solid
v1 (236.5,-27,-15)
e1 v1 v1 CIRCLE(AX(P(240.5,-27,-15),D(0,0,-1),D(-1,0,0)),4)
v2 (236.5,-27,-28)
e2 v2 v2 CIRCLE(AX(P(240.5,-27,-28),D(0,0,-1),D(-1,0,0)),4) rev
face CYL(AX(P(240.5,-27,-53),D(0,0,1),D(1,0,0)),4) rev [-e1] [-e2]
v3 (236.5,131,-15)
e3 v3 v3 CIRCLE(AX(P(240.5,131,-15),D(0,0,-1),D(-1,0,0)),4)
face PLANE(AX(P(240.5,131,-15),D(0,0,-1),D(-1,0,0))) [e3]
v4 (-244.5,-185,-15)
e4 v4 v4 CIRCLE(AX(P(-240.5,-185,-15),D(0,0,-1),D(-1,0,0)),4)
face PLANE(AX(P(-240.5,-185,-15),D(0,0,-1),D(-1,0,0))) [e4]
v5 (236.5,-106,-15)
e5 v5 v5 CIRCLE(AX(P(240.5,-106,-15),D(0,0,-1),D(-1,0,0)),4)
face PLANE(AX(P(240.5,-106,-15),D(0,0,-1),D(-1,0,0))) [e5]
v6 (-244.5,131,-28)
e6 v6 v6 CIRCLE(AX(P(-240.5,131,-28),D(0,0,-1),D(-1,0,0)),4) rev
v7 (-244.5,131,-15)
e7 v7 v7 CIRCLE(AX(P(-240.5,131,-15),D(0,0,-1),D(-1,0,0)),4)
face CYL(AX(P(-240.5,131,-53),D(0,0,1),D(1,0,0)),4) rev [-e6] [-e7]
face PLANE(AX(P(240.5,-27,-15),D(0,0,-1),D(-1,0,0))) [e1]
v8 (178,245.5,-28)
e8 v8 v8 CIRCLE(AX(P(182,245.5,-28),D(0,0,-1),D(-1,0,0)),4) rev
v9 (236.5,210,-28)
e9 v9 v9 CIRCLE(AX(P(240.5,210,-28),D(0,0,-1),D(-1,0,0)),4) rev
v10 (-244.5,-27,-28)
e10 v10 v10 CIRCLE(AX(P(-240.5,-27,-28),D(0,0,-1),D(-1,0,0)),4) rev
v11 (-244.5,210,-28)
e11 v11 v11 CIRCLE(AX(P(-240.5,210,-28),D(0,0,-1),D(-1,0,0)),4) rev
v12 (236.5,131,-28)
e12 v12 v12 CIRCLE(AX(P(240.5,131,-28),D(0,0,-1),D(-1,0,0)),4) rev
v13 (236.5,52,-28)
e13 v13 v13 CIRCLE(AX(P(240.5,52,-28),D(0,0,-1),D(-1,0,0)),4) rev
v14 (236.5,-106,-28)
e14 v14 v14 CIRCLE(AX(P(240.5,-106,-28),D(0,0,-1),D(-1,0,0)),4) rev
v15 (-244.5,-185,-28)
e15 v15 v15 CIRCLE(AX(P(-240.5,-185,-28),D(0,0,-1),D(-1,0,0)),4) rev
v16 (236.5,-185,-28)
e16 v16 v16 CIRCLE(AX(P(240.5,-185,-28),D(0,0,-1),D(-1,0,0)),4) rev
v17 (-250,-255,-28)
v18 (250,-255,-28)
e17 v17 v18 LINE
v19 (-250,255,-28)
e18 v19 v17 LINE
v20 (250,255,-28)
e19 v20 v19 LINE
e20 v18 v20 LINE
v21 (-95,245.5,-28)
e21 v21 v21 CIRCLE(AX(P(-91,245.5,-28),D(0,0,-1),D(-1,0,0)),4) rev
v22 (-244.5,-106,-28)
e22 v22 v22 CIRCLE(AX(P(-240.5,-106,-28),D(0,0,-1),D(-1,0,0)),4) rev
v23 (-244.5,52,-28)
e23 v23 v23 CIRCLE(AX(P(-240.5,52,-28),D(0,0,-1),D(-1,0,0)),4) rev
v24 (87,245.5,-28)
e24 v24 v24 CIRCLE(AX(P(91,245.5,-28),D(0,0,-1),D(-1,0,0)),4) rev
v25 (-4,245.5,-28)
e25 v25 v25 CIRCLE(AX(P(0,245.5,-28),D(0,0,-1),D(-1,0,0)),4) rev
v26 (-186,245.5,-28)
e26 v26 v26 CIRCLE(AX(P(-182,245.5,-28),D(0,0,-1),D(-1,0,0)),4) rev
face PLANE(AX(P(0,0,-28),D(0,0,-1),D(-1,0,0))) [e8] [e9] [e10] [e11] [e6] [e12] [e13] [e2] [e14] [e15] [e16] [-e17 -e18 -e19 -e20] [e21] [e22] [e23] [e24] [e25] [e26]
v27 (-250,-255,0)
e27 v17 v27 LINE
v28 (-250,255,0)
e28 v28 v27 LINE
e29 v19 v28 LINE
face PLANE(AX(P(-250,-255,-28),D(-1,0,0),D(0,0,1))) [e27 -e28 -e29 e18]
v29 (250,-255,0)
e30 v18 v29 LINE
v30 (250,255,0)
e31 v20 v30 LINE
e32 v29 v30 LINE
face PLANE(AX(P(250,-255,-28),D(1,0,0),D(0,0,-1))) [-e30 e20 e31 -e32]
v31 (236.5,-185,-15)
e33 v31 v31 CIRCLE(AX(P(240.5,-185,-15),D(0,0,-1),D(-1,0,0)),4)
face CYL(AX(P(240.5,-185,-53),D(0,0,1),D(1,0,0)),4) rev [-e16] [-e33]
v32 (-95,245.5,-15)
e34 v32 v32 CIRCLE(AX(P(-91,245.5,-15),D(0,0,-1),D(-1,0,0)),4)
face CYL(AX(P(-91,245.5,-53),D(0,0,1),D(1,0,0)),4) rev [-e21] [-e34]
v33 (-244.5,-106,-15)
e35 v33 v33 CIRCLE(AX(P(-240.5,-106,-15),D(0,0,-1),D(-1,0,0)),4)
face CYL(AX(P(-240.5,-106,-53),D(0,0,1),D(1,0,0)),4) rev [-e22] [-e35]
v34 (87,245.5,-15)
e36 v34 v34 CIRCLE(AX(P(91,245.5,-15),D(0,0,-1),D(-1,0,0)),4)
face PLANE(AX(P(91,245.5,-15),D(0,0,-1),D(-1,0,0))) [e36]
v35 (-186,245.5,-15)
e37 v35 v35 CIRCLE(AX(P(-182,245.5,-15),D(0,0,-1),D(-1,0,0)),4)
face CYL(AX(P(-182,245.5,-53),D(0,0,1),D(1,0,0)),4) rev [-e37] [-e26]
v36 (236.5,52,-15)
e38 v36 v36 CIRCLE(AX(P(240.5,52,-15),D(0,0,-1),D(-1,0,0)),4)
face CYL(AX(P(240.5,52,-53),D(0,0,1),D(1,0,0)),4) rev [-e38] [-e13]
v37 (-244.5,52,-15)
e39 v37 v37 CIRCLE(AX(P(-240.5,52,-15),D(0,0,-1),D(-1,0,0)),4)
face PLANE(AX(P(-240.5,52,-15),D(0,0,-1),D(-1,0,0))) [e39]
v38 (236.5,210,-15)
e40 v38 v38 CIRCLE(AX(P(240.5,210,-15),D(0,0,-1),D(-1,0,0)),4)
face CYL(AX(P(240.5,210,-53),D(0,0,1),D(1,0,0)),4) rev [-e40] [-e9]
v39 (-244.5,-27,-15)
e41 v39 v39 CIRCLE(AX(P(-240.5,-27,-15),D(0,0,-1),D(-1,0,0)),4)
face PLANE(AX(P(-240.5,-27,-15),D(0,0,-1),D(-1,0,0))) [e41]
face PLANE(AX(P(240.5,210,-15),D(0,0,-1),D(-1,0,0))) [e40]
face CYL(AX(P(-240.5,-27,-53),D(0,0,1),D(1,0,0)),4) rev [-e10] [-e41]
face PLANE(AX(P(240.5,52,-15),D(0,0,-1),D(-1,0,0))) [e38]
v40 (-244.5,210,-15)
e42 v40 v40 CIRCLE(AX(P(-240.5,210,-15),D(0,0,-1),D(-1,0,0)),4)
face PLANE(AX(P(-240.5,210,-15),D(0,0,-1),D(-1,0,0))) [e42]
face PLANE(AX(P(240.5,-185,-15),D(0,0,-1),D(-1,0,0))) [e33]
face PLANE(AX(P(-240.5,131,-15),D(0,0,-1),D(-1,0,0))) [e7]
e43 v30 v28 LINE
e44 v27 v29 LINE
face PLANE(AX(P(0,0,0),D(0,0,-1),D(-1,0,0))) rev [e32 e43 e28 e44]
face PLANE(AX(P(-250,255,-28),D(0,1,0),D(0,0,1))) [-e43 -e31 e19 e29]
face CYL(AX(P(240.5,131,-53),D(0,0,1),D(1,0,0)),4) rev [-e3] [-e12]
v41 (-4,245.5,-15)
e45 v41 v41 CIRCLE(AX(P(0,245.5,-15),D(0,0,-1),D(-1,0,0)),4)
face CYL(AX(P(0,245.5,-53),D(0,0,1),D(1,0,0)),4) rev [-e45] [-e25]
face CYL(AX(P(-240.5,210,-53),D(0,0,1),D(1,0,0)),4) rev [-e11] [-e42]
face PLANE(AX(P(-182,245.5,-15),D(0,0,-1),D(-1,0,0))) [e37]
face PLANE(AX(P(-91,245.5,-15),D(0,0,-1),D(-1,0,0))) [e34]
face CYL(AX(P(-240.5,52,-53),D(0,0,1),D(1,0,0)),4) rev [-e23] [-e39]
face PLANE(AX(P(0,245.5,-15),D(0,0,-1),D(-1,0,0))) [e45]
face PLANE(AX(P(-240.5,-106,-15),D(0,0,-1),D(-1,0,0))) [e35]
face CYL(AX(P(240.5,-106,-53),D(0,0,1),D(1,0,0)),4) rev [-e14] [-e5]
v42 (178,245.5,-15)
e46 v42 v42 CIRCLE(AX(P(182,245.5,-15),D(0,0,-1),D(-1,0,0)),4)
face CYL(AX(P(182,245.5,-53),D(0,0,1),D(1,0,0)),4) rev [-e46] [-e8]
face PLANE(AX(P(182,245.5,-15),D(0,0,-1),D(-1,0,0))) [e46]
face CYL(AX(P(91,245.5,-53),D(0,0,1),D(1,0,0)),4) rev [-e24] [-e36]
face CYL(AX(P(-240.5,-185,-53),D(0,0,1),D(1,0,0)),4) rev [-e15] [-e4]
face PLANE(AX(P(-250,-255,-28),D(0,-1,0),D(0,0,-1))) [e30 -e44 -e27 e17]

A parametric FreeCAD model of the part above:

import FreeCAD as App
import Part
import Sketcher
from FreeCAD import Vector
Q = App.Units.Quantity


def add_polygon(sketch, points):
    """Adds a closed chain of lines whose ends are joined by coincident constraints."""
    first, n = sketch.GeometryCount, len(points)
    for a, b in zip(points, points[1:] + points[:1]):
        sketch.addGeometry(Part.LineSegment(App.Vector(*a, 0), App.Vector(*b, 0)), False)
    for i in range(n):
        sketch.addConstraint(Sketcher.Constraint("Coincident", first + i, 2, first + (i + 1) % n, 1))

doc = App.newDocument("Part")
params = doc.addObject("Spreadsheet::Sheet", "Params")
for row, (alias, value) in enumerate([
    ("sketch1_width", "500 mm"),
    ("sketch1_height", "510 mm"),
    ("pad1_length", "28 mm"),
    ("sketch2_diameter", "8 mm"),
    ("pocket1_length", "25 mm"),
    ("pocket1_length2", "13 mm"),
], start=1):
    params.set(f"A{row}", alias)
    params.set(f"B{row}", "=" + value)
    params.setAlias(f"B{row}", alias)

body = doc.addObject("PartDesign::Body", "Body")

sketch1 = body.newObject("Sketcher::SketchObject", "Sketch")
sketch1.AttachmentSupport = (doc.getObject("XY_Plane"), [""])
sketch1.MapMode = "FlatFace"
add_polygon(sketch1, [(-250, 255), (-250, -255), (250, -255), (250, 255)])
sketch1.addConstraint([
    Sketcher.Constraint("Vertical", 0),
    Sketcher.Constraint("Horizontal", 1),
    Sketcher.Constraint("Vertical", 2),
    Sketcher.Constraint("Horizontal", 3),
    Sketcher.Constraint("Symmetric", 0, 2, 2, 2, -1, 1),
    Sketcher.Constraint("DistanceX", 1, 1, 1, 2, Q("500 mm")),
    Sketcher.Constraint("DistanceY", 0, 2, 0, 1, Q("510 mm")),
])
sketch1.setExpression("Constraints[9]", "Params.sketch1_width")
sketch1.setExpression("Constraints[10]", "Params.sketch1_height")
pad1 = body.newObject("PartDesign::Pad", "Pad")
pad1.Profile = sketch1
pad1.setExpression("Length", "Params.pad1_length")
pad1.Reversed = True

sketch2 = body.newObject("Sketcher::SketchObject", "Sketch001")
sketch2.AttachmentSupport = (doc.getObject("XY_Plane"), [""])
sketch2.MapMode = "FlatFace"
sketch2.AttachmentOffset = App.Placement(Vector(0, 0, -28), App.Rotation())
sketch2.addGeometry([
    Part.Circle(Vector(240.5, 210, 0), Vector(0, 0, 1), 4),
    Part.Circle(Vector(182, 245.5, 0), Vector(0, 0, 1), 4),
    Part.Circle(Vector(-240.5, 210, 0), Vector(0, 0, 1), 4),
    Part.Circle(Vector(-240.5, 131, 0), Vector(0, 0, 1), 4),
    Part.Circle(Vector(240.5, 131, 0), Vector(0, 0, 1), 4),
    Part.Circle(Vector(-240.5, 52, 0), Vector(0, 0, 1), 4),
    Part.Circle(Vector(240.5, 52, 0), Vector(0, 0, 1), 4),
    Part.Circle(Vector(-240.5, -27, 0), Vector(0, 0, 1), 4),
    Part.Circle(Vector(240.5, -27, 0), Vector(0, 0, 1), 4),
    Part.Circle(Vector(-240.5, -106, 0), Vector(0, 0, 1), 4),
    Part.Circle(Vector(240.5, -106, 0), Vector(0, 0, 1), 4),
    Part.Circle(Vector(-182, 245.5, 0), Vector(0, 0, 1), 4),
    Part.Circle(Vector(-240.5, -185, 0), Vector(0, 0, 1), 4),
    Part.Circle(Vector(91, 245.5, 0), Vector(0, 0, 1), 4),
    Part.Circle(Vector(0, 245.5, 0), Vector(0, 0, 1), 4),
    Part.Circle(Vector(-91, 245.5, 0), Vector(0, 0, 1), 4),
    Part.Circle(Vector(240.5, -185, 0), Vector(0, 0, 1), 4),
], False)
sketch2.addConstraint([
    Sketcher.Constraint("Equal", 0, 1),
    Sketcher.Constraint("Equal", 1, 2),
    Sketcher.Constraint("Equal", 2, 3),
    Sketcher.Constraint("Equal", 3, 4),
    Sketcher.Constraint("Equal", 4, 5),
    Sketcher.Constraint("Equal", 5, 6),
    Sketcher.Constraint("Equal", 6, 7),
    Sketcher.Constraint("Equal", 7, 8),
    Sketcher.Constraint("Equal", 8, 9),
    Sketcher.Constraint("Equal", 9, 10),
    Sketcher.Constraint("Equal", 10, 11),
    Sketcher.Constraint("Equal", 11, 12),
    Sketcher.Constraint("Equal", 12, 13),
    Sketcher.Constraint("Equal", 13, 14),
    Sketcher.Constraint("Equal", 14, 15),
    Sketcher.Constraint("Equal", 15, 16),
    Sketcher.Constraint("Symmetric", 0, 3, 2, 3, -2),
    Sketcher.Constraint("Symmetric", 3, 3, 4, 3, -2),
    Sketcher.Constraint("Symmetric", 5, 3, 6, 3, -2),
    Sketcher.Constraint("Symmetric", 7, 3, 8, 3, -2),
    Sketcher.Constraint("Symmetric", 9, 3, 10, 3, -2),
    Sketcher.Constraint("Symmetric", 1, 3, 11, 3, -2),
    Sketcher.Constraint("Symmetric", 13, 3, 15, 3, -2),
    Sketcher.Constraint("Symmetric", 12, 3, 16, 3, -2),
    Sketcher.Constraint("PointOnObject", 14, 3, -2),
    Sketcher.Constraint("Horizontal", 11, 3, 13, 3),
    Sketcher.Constraint("Horizontal", 13, 3, 14, 3),
    Sketcher.Constraint("Vertical", 2, 3, 3, 3),
    Sketcher.Constraint("Vertical", 3, 3, 5, 3),
    Sketcher.Constraint("Vertical", 5, 3, 7, 3),
    Sketcher.Constraint("Vertical", 7, 3, 9, 3),
    Sketcher.Constraint("Vertical", 9, 3, 12, 3),
    Sketcher.Constraint("Diameter", 0, Q("8 mm")),
    Sketcher.Constraint("DistanceY", -1, 1, 0, 3, Q("210 mm")),
    Sketcher.Constraint("DistanceX", -1, 1, 1, 3, Q("182 mm")),
    Sketcher.Constraint("DistanceY", -1, 1, 3, 3, Q("131 mm")),
    Sketcher.Constraint("DistanceY", -1, 1, 5, 3, Q("52 mm")),
    Sketcher.Constraint("DistanceY", 7, 3, -1, 1, Q("27 mm")),
    Sketcher.Constraint("DistanceY", 9, 3, -1, 1, Q("106 mm")),
    Sketcher.Constraint("DistanceY", 12, 3, -1, 1, Q("185 mm")),
    Sketcher.Constraint("DistanceX", -1, 1, 13, 3, Q("91 mm")),
    Sketcher.Constraint("DistanceX", 2, 3, 0, 3, Q("481 mm")),
    Sketcher.Constraint("DistanceY", -1, 1, 1, 3, Q("245.5 mm")),
])
sketch2.setExpression("Constraints[32]", "Params.sketch2_diameter")
pocket1 = body.newObject("PartDesign::Pocket", "Pocket")
pocket1.Profile = sketch2
pocket1.Type = "TwoLengths"
pocket1.setExpression("Length", "Params.pocket1_length")
pocket1.setExpression("Length2", "Params.pocket1_length2")

doc.recompute()
